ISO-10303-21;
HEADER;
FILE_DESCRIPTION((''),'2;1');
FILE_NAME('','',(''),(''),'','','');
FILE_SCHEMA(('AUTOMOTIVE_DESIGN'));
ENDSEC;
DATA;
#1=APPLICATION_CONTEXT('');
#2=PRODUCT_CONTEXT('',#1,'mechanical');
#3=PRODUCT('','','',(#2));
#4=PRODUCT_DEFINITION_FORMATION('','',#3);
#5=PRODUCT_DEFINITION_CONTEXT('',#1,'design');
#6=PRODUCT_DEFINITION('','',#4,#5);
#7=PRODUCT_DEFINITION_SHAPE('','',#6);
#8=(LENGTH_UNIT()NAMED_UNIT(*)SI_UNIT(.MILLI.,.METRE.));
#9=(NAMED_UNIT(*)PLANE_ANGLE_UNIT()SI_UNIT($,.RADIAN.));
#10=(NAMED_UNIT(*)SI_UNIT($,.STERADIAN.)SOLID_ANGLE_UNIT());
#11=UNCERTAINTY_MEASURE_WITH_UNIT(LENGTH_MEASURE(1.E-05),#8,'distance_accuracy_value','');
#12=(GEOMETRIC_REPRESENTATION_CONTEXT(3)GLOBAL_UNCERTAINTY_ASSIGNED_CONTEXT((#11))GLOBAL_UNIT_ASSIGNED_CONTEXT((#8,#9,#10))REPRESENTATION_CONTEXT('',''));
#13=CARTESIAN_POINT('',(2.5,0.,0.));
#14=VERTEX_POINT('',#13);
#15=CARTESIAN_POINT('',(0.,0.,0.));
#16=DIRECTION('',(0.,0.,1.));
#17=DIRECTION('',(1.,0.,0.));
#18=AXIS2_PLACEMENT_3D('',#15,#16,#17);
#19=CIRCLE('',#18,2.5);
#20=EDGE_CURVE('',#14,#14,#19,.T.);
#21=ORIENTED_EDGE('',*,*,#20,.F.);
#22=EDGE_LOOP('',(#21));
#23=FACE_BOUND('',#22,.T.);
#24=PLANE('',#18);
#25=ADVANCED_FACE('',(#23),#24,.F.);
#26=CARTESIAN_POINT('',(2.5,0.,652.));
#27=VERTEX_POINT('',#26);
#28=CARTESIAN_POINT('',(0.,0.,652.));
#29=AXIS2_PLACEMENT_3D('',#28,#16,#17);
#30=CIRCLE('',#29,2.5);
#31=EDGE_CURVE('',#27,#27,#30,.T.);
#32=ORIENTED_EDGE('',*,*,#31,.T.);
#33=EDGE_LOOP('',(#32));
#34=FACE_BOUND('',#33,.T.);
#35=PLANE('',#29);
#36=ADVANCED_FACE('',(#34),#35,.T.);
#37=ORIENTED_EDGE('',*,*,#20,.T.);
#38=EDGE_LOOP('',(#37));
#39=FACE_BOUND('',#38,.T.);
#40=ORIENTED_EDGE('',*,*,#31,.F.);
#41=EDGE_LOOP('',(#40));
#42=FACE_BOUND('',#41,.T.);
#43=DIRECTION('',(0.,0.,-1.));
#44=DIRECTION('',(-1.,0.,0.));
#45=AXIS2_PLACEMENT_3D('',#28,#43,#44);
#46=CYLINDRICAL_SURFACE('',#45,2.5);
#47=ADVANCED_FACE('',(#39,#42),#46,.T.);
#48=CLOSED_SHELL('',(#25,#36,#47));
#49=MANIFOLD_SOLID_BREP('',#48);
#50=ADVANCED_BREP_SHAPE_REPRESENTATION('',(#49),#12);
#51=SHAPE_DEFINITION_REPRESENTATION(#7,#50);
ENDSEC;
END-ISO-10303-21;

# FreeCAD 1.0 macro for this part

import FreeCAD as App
import Part
import Sketcher

V = App.Vector

doc = App.newDocument("Part")
body = doc.addObject("PartDesign::Body", "Body")

# Sketch on XY plane
sketch1 = doc.addObject("Sketcher::SketchObject", "Sketch")
body.addObject(sketch1)
sketch1.AttachmentSupport = (doc.XY_Plane, [""])
sketch1.MapMode = "FlatFace"
sketch1.addGeometry(Part.Circle(V(0, 0, 0), V(0, 0, 1), 2.5), False)
sketch1.addConstraint([
    Sketcher.Constraint("Coincident", 0, 3, -1, 1),
    Sketcher.Constraint("Diameter", 0, 5.0),
])
pad1 = doc.addObject("PartDesign::Pad", "Pad")
body.addObject(pad1)
pad1.Profile = sketch1
pad1.Length = 652

doc.recompute()
